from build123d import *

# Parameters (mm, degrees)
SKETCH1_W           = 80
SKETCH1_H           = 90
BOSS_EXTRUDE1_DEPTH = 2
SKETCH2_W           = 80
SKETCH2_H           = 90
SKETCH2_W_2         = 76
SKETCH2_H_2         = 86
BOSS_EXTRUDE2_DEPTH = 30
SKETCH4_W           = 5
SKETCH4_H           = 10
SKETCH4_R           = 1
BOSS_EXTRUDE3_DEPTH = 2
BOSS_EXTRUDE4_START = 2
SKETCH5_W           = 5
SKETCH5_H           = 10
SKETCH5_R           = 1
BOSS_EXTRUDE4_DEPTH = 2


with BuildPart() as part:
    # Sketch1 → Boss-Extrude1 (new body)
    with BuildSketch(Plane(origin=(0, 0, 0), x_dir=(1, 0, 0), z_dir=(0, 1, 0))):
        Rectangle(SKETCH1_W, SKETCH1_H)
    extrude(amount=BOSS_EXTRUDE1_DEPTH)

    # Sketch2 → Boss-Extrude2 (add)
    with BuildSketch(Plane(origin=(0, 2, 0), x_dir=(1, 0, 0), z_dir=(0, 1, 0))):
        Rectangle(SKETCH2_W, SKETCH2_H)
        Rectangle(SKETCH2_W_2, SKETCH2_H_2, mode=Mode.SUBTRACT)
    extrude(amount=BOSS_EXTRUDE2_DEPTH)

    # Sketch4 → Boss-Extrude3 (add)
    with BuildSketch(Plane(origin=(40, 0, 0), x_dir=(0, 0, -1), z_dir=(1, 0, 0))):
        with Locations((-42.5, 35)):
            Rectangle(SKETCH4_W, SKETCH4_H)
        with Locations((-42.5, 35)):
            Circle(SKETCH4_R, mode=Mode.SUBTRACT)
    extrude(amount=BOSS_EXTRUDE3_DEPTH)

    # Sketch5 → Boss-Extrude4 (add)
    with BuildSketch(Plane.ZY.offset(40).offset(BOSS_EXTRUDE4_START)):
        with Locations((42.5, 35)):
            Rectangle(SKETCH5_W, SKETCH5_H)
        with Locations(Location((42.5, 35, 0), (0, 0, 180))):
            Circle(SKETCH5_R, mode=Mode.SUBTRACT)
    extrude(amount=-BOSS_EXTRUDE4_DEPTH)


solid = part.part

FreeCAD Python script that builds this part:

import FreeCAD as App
import Part
import Sketcher
Q = App.Units.Quantity


def add_polygon(sketch, points):
    """Adds a closed chain of lines whose ends are joined by coincident constraints."""
    first, n = sketch.GeometryCount, len(points)
    for a, b in zip(points, points[1:] + points[:1]):
        sketch.addGeometry(Part.LineSegment(App.Vector(*a, 0), App.Vector(*b, 0)), False)
    for i in range(n):
        sketch.addConstraint(Sketcher.Constraint("Coincident", first + i, 2, first + (i + 1) % n, 1))

doc = App.newDocument("Part")
body = doc.addObject("PartDesign::Body", "Body")

sketch1 = doc.addObject("Sketcher::SketchObject", "Sketch")
body.addObject(sketch1)
sketch1.AttachmentSupport = (doc.XZ_Plane, [""])
sketch1.MapMode = "FlatFace"
add_polygon(sketch1, [(-40, -45), (-40, 45), (40, 45), (40, -45)])
sketch1.addConstraint([
    Sketcher.Constraint("Vertical", 0),
    Sketcher.Constraint("Horizontal", 1),
    Sketcher.Constraint("Vertical", 2),
    Sketcher.Constraint("Horizontal", 3),
    Sketcher.Constraint("Symmetric", 0, 2, 2, 2, -1, 1),
    Sketcher.Constraint("DistanceX", 1, 1, 1, 2, Q("80 mm")),
    Sketcher.Constraint("DistanceY", 0, 1, 0, 2, Q("90 mm")),
])
pad1 = doc.addObject("PartDesign::Pad", "Pad")
body.addObject(pad1)
pad1.Profile = sketch1
pad1.Length = 2
pad1.Reversed = True

sketch2 = doc.addObject("Sketcher::SketchObject", "Sketch001")
body.addObject(sketch2)
sketch2.AttachmentSupport = (doc.XZ_Plane, [""])
sketch2.MapMode = "FlatFace"
sketch2.AttachmentOffset = App.Placement(App.Vector(0, 0, -2), App.Rotation())
add_polygon(sketch2, [(-40, -45), (-40, 45), (40, 45), (40, -45)])
add_polygon(sketch2, [(38, 43), (-38, 43), (-38, -43), (38, -43)])
sketch2.addConstraint([
    Sketcher.Constraint("Vertical", 0),
    Sketcher.Constraint("Horizontal", 1),
    Sketcher.Constraint("Vertical", 2),
    Sketcher.Constraint("Horizontal", 3),
    Sketcher.Constraint("Horizontal", 4),
    Sketcher.Constraint("Vertical", 5),
    Sketcher.Constraint("Horizontal", 6),
    Sketcher.Constraint("Vertical", 7),
    Sketcher.Constraint("Symmetric", 0, 2, 2, 2, -1, 1),
    Sketcher.Constraint("Symmetric", 4, 2, 6, 2, -1, 1),
    Sketcher.Constraint("DistanceX", 1, 1, 1, 2, Q("80 mm")),
    Sketcher.Constraint("DistanceX", 4, 2, 4, 1, Q("76 mm")),
    Sketcher.Constraint("DistanceY", 0, 1, 0, 2, Q("90 mm")),
    Sketcher.Constraint("DistanceY", 5, 2, 5, 1, Q("86 mm")),
])
pad2 = doc.addObject("PartDesign::Pad", "Pad001")
body.addObject(pad2)
pad2.Profile = sketch2
pad2.Length = 30
pad2.Reversed = True

sketch3 = doc.addObject("Sketcher::SketchObject", "Sketch002")
body.addObject(sketch3)
sketch3.AttachmentSupport = (doc.YZ_Plane, [""])
sketch3.MapMode = "FlatFace"
sketch3.AttachmentOffset = App.Placement(App.Vector(0, 0, 40), App.Rotation())
add_polygon(sketch3, [(40, 45), (30, 45), (30, 40), (40, 40)])
sketch3.addGeometry(Part.Circle(App.Vector(35, 42.5, 0), App.Vector(0, 0, 1), 1), False)
sketch3.addConstraint([
    Sketcher.Constraint("Horizontal", 0),
    Sketcher.Constraint("Vertical", 1),
    Sketcher.Constraint("Horizontal", 2),
    Sketcher.Constraint("Vertical", 3),
    Sketcher.Constraint("Diameter", 4, Q("2 mm")),
    Sketcher.Constraint("DistanceX", 0, 2, 0, 1, Q("10 mm")),
    Sketcher.Constraint("DistanceY", 1, 2, 1, 1, Q("5 mm")),
    Sketcher.Constraint("DistanceX", -1, 1, 4, 3, Q("35 mm")),
    Sketcher.Constraint("DistanceX", -1, 1, 0, 2, Q("30 mm")),
    Sketcher.Constraint("DistanceY", -1, 1, 0, 2, Q("45 mm")),
    Sketcher.Constraint("DistanceY", -1, 1, 4, 3, Q("42.5 mm")),
])
pad3 = doc.addObject("PartDesign::Pad", "Pad002")
body.addObject(pad3)
pad3.Profile = sketch3
pad3.Length = 2

sketch4 = doc.addObject("Sketcher::SketchObject", "Sketch003")
body.addObject(sketch4)
sketch4.AttachmentSupport = (doc.YZ_Plane, [""])
sketch4.MapMode = "FlatFace"
sketch4.AttachmentOffset = App.Placement(App.Vector(0, 0, -42), App.Rotation())
add_polygon(sketch4, [(40, 40), (30, 40), (30, 45), (40, 45)])
sketch4.addGeometry(Part.Circle(App.Vector(35, 42.5, 0), App.Vector(0, 0, 1), 1), False)
sketch4.addConstraint([
    Sketcher.Constraint("Horizontal", 0),
    Sketcher.Constraint("Vertical", 1),
    Sketcher.Constraint("Horizontal", 2),
    Sketcher.Constraint("Vertical", 3),
    Sketcher.Constraint("Diameter", 4, Q("2 mm")),
    Sketcher.Constraint("DistanceX", 0, 2, 0, 1, Q("10 mm")),
    Sketcher.Constraint("DistanceY", 1, 1, 1, 2, Q("5 mm")),
    Sketcher.Constraint("DistanceX", -1, 1, 4, 3, Q("35 mm")),
    Sketcher.Constraint("DistanceX", -1, 1, 0, 2, Q("30 mm")),
    Sketcher.Constraint("DistanceY", -1, 1, 0, 2, Q("40 mm")),
    Sketcher.Constraint("DistanceY", -1, 1, 4, 3, Q("42.5 mm")),
])
pad4 = doc.addObject("PartDesign::Pad", "Pad003")
body.addObject(pad4)
pad4.Profile = sketch4
pad4.Length = 2

doc.recompute()
